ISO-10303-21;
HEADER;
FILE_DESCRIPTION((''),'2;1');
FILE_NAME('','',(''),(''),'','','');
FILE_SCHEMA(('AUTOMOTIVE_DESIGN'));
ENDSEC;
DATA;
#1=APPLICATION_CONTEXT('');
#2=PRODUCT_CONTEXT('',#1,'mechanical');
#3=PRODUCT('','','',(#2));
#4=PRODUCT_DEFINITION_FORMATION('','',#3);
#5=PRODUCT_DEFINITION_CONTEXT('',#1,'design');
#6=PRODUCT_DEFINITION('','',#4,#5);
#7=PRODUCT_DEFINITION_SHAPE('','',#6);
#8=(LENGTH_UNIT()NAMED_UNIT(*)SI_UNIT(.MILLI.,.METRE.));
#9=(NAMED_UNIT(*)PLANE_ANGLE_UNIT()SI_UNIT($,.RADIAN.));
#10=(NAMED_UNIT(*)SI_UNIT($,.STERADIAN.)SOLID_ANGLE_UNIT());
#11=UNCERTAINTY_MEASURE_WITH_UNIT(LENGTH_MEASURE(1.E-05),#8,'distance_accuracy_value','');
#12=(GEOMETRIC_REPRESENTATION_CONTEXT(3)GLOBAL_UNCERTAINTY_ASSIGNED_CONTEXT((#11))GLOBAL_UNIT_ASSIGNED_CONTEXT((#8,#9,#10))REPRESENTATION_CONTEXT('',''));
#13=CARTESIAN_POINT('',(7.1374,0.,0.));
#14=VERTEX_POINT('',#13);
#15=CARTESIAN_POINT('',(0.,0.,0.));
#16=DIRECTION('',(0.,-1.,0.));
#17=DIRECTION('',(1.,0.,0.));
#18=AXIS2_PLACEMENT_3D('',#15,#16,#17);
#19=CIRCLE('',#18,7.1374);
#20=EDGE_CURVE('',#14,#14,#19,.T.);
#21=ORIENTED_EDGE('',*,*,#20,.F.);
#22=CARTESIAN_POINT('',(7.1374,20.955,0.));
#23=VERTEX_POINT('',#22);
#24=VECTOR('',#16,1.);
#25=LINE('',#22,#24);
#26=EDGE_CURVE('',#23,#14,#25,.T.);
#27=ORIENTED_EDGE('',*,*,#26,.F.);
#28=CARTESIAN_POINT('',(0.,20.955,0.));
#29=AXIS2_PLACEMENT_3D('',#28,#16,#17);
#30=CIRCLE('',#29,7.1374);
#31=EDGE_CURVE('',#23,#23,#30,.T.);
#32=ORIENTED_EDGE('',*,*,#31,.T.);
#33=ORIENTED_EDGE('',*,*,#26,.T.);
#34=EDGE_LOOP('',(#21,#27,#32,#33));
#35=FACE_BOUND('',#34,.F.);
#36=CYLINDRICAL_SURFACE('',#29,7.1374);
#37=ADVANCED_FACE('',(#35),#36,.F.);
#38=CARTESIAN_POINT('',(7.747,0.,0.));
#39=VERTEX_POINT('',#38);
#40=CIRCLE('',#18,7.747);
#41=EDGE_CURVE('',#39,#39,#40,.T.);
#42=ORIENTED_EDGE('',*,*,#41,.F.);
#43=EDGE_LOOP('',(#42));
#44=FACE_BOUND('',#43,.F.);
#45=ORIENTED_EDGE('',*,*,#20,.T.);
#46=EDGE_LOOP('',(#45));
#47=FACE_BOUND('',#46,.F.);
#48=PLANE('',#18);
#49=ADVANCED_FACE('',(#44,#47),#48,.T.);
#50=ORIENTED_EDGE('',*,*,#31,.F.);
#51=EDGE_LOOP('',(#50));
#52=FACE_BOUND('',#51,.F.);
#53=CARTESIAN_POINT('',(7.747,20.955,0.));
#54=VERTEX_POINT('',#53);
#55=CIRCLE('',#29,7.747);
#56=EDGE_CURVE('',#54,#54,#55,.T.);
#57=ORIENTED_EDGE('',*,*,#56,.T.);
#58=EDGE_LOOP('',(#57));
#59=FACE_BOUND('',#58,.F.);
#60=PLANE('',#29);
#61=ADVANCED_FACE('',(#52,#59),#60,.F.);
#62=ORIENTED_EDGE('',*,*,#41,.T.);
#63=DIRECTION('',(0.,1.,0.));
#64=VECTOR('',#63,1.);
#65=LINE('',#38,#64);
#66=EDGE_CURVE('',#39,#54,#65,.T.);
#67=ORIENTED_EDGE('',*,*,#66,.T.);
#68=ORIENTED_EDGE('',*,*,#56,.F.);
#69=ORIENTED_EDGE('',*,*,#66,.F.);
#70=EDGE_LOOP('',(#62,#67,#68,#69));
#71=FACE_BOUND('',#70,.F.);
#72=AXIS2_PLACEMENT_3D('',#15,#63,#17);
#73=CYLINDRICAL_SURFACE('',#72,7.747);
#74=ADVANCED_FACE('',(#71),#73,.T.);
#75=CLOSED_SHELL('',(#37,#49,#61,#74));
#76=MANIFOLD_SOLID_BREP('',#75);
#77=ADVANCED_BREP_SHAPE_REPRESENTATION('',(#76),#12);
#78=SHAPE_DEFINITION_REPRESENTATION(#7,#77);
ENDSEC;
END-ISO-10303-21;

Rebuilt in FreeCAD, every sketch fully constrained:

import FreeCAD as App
import Part
import Sketcher
Q = App.Units.Quantity


def add_polygon(sketch, points):
    """Adds a closed chain of lines whose ends are joined by coincident constraints."""
    first, n = sketch.GeometryCount, len(points)
    for a, b in zip(points, points[1:] + points[:1]):
        sketch.addGeometry(Part.LineSegment(App.Vector(*a, 0), App.Vector(*b, 0)), False)
    for i in range(n):
        sketch.addConstraint(Sketcher.Constraint("Coincident", first + i, 2, first + (i + 1) % n, 1))

doc = App.newDocument("Part")
body = doc.addObject("PartDesign::Body", "Body")

# Sketch on XY plane
sketch1 = body.newObject("Sketcher::SketchObject", "Sketch")
sketch1.AttachmentSupport = (doc.getObject("XY_Plane"), [""])
sketch1.MapMode = "FlatFace"
add_polygon(sketch1, [(7.747, 20.955), (7.1374, 20.955), (7.1374, 0), (7.747, 0)])  # lines 0-3
sketch1.addConstraint(Sketcher.Constraint("Horizontal", 0))
sketch1.addConstraint(Sketcher.Constraint("Vertical", 1))
sketch1.addConstraint(Sketcher.Constraint("Horizontal", 2))
sketch1.addConstraint(Sketcher.Constraint("Vertical", 3))
sketch1.addConstraint(Sketcher.Constraint("PointOnObject", 1, 2, -1))
sketch1.addConstraint(Sketcher.Constraint("DistanceX", 0, 2, 0, 1, Q("0.024 in")))
sketch1.addConstraint(Sketcher.Constraint("DistanceY", 1, 2, 1, 1, Q("0.825 in")))
sketch1.addConstraint(Sketcher.Constraint("DistanceX", -1, 1, 0, 2, Q("0.281 in")))
revolution = body.newObject("PartDesign::Revolution", "Revolution")
revolution.Profile = sketch1
revolution.ReferenceAxis = (sketch1, ["V_Axis"])
revolution.Angle = 360

doc.recompute()
